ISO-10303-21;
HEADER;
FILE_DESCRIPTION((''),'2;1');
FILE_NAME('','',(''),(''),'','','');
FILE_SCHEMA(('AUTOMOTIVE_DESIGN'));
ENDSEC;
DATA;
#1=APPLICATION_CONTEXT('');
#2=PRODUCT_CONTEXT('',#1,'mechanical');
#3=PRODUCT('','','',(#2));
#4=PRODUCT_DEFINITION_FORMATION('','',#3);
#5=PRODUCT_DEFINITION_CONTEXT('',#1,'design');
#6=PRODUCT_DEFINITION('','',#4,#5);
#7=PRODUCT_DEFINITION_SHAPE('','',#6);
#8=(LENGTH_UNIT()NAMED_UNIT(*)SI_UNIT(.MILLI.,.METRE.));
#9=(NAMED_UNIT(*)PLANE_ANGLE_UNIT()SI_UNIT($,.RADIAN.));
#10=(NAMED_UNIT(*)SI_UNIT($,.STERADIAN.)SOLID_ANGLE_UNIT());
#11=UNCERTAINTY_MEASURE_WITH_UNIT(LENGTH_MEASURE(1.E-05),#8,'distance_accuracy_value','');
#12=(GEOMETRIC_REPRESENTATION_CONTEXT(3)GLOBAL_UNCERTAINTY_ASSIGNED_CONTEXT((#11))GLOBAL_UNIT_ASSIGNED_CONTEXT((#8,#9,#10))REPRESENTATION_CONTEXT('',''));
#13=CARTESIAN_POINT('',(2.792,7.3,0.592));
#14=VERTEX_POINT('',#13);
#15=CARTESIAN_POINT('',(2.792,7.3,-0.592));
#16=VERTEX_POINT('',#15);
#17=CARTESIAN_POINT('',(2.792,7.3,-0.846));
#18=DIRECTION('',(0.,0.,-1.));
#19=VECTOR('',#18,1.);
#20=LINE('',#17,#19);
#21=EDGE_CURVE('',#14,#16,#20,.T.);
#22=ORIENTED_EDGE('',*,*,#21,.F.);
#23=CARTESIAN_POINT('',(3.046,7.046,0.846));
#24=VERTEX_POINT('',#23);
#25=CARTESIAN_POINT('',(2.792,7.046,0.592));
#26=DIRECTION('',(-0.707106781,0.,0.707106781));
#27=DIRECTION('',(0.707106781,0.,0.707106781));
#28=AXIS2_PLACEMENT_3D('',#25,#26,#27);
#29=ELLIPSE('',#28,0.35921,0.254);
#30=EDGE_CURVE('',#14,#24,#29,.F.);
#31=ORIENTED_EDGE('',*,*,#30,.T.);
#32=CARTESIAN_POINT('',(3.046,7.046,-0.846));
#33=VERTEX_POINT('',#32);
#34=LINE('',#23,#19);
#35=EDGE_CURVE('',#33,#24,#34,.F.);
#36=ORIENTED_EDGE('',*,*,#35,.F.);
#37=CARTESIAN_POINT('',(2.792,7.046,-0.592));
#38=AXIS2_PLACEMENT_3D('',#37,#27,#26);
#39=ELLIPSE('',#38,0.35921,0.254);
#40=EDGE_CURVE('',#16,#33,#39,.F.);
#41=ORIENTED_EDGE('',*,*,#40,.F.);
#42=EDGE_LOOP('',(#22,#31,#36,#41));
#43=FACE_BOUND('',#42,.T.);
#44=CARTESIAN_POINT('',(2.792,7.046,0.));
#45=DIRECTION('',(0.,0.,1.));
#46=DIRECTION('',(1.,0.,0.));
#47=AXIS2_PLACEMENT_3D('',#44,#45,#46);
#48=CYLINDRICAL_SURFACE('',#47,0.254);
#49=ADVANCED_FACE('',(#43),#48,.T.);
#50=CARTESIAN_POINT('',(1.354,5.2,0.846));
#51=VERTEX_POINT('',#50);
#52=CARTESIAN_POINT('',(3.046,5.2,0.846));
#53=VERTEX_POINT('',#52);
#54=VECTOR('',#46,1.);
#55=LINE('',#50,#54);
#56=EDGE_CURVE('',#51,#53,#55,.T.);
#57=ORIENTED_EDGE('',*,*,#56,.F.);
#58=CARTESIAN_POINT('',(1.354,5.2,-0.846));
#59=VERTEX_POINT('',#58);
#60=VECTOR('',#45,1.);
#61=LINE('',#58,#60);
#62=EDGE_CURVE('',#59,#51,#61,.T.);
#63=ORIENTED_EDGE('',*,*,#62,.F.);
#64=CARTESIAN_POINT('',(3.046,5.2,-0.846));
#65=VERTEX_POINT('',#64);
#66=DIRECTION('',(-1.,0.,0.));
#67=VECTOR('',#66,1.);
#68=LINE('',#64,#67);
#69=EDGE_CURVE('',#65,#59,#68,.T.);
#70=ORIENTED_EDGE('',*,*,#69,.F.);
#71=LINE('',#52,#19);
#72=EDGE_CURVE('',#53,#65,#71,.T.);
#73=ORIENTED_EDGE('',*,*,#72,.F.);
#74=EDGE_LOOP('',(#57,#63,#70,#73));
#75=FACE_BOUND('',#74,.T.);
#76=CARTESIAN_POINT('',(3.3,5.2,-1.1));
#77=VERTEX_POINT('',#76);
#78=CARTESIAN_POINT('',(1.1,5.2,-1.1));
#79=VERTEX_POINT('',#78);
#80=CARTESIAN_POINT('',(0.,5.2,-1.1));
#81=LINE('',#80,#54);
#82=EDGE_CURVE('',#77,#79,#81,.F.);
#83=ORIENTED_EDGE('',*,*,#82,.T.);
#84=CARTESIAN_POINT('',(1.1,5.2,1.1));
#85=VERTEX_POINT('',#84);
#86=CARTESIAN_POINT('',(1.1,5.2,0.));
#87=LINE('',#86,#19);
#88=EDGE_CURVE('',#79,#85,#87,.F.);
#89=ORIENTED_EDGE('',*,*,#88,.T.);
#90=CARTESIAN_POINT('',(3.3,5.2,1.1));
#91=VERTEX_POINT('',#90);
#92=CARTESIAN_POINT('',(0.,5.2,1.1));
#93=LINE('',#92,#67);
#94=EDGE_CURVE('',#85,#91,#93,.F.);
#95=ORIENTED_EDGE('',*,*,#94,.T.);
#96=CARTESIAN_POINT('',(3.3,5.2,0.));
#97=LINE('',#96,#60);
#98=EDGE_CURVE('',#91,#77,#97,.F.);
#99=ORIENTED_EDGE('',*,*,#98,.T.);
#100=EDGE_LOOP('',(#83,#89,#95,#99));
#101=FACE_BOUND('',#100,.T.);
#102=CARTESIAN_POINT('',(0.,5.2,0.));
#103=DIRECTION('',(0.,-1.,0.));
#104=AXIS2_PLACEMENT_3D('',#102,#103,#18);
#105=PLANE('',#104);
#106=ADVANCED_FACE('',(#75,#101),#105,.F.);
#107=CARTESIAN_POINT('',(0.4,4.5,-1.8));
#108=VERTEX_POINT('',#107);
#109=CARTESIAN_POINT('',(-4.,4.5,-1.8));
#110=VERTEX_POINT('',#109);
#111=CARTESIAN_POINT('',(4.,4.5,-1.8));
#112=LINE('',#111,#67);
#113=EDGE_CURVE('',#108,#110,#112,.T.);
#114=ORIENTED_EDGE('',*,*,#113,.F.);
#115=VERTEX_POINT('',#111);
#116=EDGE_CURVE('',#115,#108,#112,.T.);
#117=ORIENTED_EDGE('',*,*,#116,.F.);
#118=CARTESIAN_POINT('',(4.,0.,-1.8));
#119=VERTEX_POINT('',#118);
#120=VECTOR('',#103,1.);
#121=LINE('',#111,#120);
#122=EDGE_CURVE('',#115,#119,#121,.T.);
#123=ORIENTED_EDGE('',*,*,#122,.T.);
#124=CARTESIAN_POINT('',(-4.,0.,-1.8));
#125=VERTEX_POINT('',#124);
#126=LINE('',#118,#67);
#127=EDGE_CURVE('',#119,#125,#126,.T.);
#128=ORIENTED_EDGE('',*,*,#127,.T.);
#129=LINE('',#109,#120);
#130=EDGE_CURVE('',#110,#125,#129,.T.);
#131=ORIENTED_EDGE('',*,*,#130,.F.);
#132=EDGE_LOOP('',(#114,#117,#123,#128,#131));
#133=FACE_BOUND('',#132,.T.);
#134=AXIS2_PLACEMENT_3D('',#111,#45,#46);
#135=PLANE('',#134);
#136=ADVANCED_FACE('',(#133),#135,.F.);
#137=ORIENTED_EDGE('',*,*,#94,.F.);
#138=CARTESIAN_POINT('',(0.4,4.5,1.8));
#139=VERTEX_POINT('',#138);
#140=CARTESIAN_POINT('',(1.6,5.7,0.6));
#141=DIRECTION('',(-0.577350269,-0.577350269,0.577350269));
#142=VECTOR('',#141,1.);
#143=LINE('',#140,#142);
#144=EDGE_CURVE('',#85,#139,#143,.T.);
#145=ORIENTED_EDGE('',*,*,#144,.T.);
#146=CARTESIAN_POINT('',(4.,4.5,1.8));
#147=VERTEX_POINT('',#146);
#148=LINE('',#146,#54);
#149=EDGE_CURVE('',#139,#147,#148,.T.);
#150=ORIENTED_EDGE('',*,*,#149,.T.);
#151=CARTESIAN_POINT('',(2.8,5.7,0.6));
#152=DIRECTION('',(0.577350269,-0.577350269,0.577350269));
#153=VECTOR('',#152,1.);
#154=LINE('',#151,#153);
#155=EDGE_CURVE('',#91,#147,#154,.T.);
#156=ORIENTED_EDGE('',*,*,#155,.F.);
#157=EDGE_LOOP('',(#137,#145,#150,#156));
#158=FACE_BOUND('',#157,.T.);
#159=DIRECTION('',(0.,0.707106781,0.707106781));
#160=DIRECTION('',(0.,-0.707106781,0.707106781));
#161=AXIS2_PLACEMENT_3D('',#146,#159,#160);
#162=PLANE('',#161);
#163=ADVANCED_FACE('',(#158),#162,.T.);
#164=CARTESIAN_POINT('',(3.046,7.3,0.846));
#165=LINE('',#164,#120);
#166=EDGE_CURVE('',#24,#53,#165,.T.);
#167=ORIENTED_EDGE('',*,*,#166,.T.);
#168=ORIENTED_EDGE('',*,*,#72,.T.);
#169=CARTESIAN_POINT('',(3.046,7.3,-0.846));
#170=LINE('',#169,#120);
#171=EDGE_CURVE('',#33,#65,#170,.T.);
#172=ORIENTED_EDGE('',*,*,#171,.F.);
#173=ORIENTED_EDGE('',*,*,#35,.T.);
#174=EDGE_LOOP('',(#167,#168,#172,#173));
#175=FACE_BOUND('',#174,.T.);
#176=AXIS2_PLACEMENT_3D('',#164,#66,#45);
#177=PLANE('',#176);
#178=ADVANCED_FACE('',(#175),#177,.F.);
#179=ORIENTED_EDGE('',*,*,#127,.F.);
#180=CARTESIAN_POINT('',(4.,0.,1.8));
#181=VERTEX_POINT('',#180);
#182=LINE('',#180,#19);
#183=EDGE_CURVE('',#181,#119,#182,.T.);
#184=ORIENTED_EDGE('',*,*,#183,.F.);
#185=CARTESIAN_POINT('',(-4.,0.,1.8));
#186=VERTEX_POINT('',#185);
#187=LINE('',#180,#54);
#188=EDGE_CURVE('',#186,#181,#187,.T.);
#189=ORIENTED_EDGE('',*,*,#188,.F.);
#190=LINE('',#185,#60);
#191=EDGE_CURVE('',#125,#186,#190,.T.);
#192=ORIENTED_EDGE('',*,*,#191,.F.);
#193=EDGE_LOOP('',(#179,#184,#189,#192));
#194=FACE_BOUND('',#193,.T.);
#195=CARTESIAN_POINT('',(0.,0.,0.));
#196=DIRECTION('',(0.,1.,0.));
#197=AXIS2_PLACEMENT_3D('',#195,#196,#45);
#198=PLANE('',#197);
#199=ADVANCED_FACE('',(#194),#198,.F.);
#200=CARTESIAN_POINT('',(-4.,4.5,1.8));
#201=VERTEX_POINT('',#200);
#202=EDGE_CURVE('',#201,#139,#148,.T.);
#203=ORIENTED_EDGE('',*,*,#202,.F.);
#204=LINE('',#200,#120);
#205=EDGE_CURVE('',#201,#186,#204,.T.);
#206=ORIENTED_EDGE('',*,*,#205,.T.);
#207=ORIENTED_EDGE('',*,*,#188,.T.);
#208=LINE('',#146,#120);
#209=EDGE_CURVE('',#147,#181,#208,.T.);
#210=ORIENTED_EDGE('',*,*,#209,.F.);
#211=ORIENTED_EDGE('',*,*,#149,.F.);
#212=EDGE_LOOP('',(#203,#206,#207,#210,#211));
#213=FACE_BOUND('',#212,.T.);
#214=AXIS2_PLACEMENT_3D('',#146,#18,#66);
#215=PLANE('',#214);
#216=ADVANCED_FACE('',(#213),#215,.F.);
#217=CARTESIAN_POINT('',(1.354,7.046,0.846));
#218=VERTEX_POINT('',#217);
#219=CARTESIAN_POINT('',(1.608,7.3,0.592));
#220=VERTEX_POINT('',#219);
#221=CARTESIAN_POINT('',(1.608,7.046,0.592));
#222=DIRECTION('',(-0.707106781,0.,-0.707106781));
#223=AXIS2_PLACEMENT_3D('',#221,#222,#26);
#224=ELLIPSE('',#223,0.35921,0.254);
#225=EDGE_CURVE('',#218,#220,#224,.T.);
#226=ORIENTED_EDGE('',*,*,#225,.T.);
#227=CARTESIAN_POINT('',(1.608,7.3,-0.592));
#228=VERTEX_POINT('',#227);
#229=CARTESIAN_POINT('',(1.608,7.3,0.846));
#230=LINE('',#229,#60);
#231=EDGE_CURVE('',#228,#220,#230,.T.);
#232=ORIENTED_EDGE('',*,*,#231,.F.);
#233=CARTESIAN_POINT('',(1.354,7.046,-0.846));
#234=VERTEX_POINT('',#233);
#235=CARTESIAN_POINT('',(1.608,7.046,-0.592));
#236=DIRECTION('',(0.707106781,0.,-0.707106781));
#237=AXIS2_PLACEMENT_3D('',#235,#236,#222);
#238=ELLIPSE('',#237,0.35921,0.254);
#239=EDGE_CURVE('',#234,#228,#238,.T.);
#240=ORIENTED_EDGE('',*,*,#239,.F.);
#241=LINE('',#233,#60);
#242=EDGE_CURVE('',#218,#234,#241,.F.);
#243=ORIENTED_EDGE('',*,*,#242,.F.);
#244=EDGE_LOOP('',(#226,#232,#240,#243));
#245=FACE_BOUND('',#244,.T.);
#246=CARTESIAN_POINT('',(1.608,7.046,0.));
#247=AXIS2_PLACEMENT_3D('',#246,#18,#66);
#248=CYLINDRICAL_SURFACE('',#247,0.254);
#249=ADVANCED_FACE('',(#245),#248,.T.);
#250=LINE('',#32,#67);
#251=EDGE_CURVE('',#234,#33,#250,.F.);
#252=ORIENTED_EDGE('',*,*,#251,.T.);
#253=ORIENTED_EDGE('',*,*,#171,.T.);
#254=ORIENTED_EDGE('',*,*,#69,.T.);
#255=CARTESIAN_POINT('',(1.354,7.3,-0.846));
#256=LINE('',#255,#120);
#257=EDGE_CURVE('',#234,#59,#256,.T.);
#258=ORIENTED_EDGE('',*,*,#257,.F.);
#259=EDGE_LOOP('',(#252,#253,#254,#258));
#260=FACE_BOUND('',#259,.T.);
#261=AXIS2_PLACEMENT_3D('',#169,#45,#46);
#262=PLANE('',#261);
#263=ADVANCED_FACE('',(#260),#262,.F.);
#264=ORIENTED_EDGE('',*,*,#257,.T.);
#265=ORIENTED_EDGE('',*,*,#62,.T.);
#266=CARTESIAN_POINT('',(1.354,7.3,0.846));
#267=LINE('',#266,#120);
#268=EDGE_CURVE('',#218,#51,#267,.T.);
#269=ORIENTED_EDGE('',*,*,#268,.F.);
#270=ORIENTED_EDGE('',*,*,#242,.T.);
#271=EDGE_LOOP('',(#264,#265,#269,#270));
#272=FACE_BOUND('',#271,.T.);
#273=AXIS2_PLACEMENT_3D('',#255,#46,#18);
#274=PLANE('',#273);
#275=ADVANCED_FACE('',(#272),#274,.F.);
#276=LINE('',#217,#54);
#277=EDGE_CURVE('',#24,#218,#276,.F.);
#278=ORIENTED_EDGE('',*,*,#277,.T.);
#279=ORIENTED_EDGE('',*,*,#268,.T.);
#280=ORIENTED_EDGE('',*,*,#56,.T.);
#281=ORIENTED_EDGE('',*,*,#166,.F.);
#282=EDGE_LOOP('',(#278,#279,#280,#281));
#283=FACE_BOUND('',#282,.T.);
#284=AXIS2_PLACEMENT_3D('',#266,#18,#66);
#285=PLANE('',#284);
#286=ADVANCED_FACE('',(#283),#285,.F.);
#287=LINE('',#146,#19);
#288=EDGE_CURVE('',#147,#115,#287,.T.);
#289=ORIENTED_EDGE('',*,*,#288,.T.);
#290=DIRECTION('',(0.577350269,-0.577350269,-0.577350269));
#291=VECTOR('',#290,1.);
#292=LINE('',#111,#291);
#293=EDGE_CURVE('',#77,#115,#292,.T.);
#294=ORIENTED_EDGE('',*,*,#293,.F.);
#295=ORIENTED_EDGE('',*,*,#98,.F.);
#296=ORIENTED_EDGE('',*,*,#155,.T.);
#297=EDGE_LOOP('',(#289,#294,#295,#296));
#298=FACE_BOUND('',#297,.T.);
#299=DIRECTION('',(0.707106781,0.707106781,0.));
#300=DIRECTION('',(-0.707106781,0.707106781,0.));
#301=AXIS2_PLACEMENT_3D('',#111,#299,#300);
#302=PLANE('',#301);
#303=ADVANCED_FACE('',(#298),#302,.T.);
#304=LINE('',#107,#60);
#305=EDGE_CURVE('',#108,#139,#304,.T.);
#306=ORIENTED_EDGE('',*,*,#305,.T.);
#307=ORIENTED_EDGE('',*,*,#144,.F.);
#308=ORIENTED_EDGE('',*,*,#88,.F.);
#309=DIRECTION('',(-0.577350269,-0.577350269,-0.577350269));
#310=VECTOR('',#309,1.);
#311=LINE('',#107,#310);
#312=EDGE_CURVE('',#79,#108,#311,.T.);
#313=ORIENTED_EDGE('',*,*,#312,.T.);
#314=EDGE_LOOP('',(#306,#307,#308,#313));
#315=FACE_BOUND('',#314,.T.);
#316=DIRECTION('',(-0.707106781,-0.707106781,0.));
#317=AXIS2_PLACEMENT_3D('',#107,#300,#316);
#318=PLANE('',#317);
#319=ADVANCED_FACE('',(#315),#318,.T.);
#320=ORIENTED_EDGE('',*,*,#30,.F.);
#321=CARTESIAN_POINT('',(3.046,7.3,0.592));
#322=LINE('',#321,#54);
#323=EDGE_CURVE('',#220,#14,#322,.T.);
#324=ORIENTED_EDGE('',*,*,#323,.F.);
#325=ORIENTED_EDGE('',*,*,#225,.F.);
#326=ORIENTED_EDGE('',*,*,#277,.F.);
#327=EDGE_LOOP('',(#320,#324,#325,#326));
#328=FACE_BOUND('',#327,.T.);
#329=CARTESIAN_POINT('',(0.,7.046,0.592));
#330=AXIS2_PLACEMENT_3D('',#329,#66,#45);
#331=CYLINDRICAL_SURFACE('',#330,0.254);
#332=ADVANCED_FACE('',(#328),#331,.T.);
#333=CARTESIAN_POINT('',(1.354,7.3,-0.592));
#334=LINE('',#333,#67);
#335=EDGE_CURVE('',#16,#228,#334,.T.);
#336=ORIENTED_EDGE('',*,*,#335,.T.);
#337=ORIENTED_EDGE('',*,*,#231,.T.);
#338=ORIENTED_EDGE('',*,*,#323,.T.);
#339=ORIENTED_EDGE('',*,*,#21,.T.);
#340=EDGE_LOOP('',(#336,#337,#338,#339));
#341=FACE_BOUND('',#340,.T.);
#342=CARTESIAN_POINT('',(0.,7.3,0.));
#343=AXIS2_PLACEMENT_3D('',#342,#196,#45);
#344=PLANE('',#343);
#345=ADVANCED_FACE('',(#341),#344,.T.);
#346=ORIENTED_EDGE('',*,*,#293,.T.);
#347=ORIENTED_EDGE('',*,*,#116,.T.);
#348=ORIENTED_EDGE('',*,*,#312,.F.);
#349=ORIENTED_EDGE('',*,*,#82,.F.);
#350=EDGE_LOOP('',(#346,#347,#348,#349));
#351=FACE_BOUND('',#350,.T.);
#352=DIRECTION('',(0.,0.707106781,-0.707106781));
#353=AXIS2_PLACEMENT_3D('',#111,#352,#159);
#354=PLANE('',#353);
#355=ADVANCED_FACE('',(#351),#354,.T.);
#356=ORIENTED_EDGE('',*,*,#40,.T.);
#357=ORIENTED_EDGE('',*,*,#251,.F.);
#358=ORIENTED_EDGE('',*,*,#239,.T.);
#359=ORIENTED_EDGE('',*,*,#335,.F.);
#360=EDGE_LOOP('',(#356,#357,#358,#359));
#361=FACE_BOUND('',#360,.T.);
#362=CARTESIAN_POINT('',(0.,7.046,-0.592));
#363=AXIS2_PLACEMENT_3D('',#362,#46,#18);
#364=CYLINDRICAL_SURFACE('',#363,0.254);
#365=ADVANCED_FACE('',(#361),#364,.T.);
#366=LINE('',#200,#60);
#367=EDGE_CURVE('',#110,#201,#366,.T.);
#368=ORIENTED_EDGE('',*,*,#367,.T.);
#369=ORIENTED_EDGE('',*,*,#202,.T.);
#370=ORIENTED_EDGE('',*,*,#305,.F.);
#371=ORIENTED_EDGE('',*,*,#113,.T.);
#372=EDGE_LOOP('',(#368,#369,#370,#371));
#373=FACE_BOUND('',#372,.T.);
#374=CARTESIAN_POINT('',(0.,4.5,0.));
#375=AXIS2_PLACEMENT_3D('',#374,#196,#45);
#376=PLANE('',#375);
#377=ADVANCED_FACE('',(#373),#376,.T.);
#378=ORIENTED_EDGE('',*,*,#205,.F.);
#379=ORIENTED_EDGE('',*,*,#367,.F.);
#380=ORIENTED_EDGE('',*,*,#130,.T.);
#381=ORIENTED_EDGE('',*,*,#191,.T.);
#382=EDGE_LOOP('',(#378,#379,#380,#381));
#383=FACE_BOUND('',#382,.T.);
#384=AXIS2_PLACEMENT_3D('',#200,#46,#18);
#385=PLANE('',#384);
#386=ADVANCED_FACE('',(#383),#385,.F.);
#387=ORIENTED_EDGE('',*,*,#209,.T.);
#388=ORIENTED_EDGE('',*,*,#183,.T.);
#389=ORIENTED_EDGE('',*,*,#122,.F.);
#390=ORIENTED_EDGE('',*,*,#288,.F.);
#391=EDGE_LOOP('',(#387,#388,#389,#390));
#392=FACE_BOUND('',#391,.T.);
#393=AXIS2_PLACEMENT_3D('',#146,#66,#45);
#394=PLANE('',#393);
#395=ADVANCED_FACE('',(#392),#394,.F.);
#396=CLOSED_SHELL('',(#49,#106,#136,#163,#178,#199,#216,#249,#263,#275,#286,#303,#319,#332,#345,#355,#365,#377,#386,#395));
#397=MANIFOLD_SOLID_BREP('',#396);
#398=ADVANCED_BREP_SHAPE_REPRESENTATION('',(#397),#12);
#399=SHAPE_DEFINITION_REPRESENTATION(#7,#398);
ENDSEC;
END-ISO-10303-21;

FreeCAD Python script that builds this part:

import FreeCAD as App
import Part
import Sketcher
from FreeCAD import Vector
Q = App.Units.Quantity


def edges_at(feature, points):
    """Names of the edges that pass closest to the given points."""
    edges = feature.Shape.Edges
    near = lambda p: min(range(len(edges)), key=lambda i: edges[i].distToShape(Part.Vertex(*p))[0])
    return sorted({f"Edge{near(p) + 1}" for p in points})


def add_polygon(sketch, points):
    """Adds a closed chain of lines whose ends are joined by coincident constraints."""
    first, n = sketch.GeometryCount, len(points)
    for a, b in zip(points, points[1:] + points[:1]):
        sketch.addGeometry(Part.LineSegment(App.Vector(*a, 0), App.Vector(*b, 0)), False)
    for i in range(n):
        sketch.addConstraint(Sketcher.Constraint("Coincident", first + i, 2, first + (i + 1) % n, 1))

doc = App.newDocument("Part")
params = doc.addObject("Spreadsheet::Sheet", "Params")
for row, (alias, value) in enumerate([
    ("sketch1_width", "8 mm"),
    ("sketch1_height", "3.6 mm"),
    ("pad1_length", "4.5 mm"),
    ("sketch2_width", "3.6 mm"),
    ("pad2_length", "0.7 mm"),
    ("pad2_taper", "-45 deg"),
    ("pad3_length", "2.1 mm"),
    ("fillet_radius", "0.254 mm"),
], start=1):
    params.set(f"A{row}", alias)
    params.set(f"B{row}", "=" + value)
    params.setAlias(f"B{row}", alias)

body = doc.addObject("PartDesign::Body", "Body")

# Sketch on XZ plane
sketch1 = body.newObject("Sketcher::SketchObject", "Sketch")
sketch1.AttachmentSupport = (doc.getObject("XZ_Plane"), [""])
sketch1.MapMode = "FlatFace"
add_polygon(sketch1, [(-4, -1.8), (-4, 1.8), (4, 1.8), (4, -1.8)])  # lines 0-3
sketch1.addConstraint([
    Sketcher.Constraint("Vertical", 0),
    Sketcher.Constraint("Horizontal", 1),
    Sketcher.Constraint("Vertical", 2),
    Sketcher.Constraint("Horizontal", 3),
    Sketcher.Constraint("Symmetric", 0, 2, 2, 2, -1, 1),
    Sketcher.Constraint("DistanceX", 1, 1, 1, 2, Q("8 mm")),
    Sketcher.Constraint("DistanceY", 0, 1, 0, 2, Q("3.6 mm")),
])
sketch1.setExpression("Constraints[9]", "Params.sketch1_width")
sketch1.setExpression("Constraints[10]", "Params.sketch1_height")
pad1 = body.newObject("PartDesign::Pad", "Pad")
pad1.Profile = sketch1
pad1.setExpression("Length", "Params.pad1_length")
pad1.Reversed = True

# Sketch on XZ plane
sketch2 = body.newObject("Sketcher::SketchObject", "Sketch001")
sketch2.AttachmentSupport = (doc.getObject("XZ_Plane"), [""])
sketch2.MapMode = "FlatFace"
sketch2.AttachmentOffset = App.Placement(Vector(0, 0, -4.5), App.Rotation())
add_polygon(sketch2, [(0.4, -1.8), (0.4, 1.8), (4, 1.8), (4, -1.8)])  # lines 0-3
sketch2.addConstraint([
    Sketcher.Constraint("Vertical", 0),
    Sketcher.Constraint("Horizontal", 1),
    Sketcher.Constraint("Vertical", 2),
    Sketcher.Constraint("Horizontal", 3),
    Sketcher.Constraint("Equal", 3, 0),
    Sketcher.Constraint("DistanceX", 1, 1, 1, 2, Q("3.6 mm")),
    Sketcher.Constraint("DistanceX", -1, 1, 1, 2, Q("4 mm")),
    Sketcher.Constraint("DistanceY", -1, 1, 0, 2, Q("1.8 mm")),
])
sketch2.setExpression("Constraints[9]", "Params.sketch2_width")
pad2 = body.newObject("PartDesign::Pad", "Pad001")
pad2.Profile = sketch2
pad2.setExpression("Length", "Params.pad2_length")
pad2.Reversed = True
pad2.setExpression("TaperAngle", "Params.pad2_taper")

# Sketch on XZ plane
sketch3 = body.newObject("Sketcher::SketchObject", "Sketch002")
sketch3.AttachmentSupport = (doc.getObject("XZ_Plane"), [""])
sketch3.MapMode = "FlatFace"
sketch3.AttachmentOffset = App.Placement(Vector(0, 0, -5.2), App.Rotation())
add_polygon(sketch3, [(1.4, -0.8), (1.4, 0.8), (3, 0.8), (3, -0.8)])  # lines 0-3
sketch3.addConstraint([
    Sketcher.Constraint("Vertical", 0),
    Sketcher.Constraint("Horizontal", 1),
    Sketcher.Constraint("Vertical", 2),
    Sketcher.Constraint("Horizontal", 3),
    Sketcher.Constraint("Equal", 3, 0),
    Sketcher.Constraint("DistanceX", 1, 1, 1, 2, Q("1.692 mm")),
    Sketcher.Constraint("DistanceX", -1, 1, 0, 2, Q("1.354 mm")),
    Sketcher.Constraint("DistanceY", -1, 1, 0, 2, Q("0.846 mm")),
])
pad3 = body.newObject("PartDesign::Pad", "Pad002")
pad3.Profile = sketch3
pad3.setExpression("Length", "Params.pad3_length")
pad3.Reversed = True
doc.recompute()

fillet = body.newObject("PartDesign::Fillet", "Fillet")
fillet.Base = (pad3, edges_at(pad3, [
    (2.2, 7.3, 0.846),
    (3.046, 7.3, 0),
    (2.2, 7.3, -0.846),
    (1.354, 7.3, 0),
]))
fillet.setExpression("Radius", "Params.fillet_radius")

doc.recompute()
